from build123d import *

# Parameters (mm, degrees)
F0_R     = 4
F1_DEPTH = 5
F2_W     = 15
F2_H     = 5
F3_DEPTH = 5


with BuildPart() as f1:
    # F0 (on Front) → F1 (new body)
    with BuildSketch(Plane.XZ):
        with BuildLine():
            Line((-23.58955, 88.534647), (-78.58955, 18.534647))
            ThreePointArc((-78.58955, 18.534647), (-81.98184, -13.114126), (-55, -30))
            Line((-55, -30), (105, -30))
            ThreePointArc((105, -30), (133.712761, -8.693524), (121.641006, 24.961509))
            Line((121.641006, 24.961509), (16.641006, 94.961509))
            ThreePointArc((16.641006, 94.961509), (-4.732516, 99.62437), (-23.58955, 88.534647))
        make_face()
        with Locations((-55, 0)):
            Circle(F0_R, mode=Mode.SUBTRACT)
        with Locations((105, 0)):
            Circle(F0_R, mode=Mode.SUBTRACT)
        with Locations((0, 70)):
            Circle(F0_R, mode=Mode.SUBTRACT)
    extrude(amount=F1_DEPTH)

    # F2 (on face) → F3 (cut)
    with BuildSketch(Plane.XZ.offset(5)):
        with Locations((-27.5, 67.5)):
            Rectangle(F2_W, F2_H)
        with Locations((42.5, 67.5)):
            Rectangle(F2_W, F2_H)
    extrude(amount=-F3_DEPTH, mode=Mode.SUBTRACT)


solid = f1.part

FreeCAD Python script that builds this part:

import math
import FreeCAD as App
import Part
import Sketcher


def add_polygon(sketch, points):
    """Adds a closed chain of lines whose ends are joined by coincident constraints."""
    first, n = sketch.GeometryCount, len(points)
    for a, b in zip(points, points[1:] + points[:1]):
        sketch.addGeometry(Part.LineSegment(App.Vector(*a, 0), App.Vector(*b, 0)), False)
    for i in range(n):
        sketch.addConstraint(Sketcher.Constraint("Coincident", first + i, 2, first + (i + 1) % n, 1))

doc = App.newDocument("Part")
body = doc.addObject("PartDesign::Body", "Body")

sketch1 = doc.addObject("Sketcher::SketchObject", "Sketch")
body.addObject(sketch1)
sketch1.AttachmentSupport = (doc.XZ_Plane, [""])
sketch1.MapMode = "FlatFace"
sketch1.addGeometry([
    Part.LineSegment(App.Vector(-23.6, 88.5, 0), App.Vector(-78.6, 18.5, 0)),
    Part.ArcOfCircle(Part.Circle(App.Vector(-55, 0, 0), App.Vector(0, 0, 1), 30), math.radians(142), math.radians(270)),
    Part.LineSegment(App.Vector(-55, -30, 0), App.Vector(105, -30, 0)),
    Part.ArcOfCircle(Part.Circle(App.Vector(105, 0, 0), App.Vector(0, 0, 1), 30), math.radians(-90), math.radians(56)),
    Part.LineSegment(App.Vector(121.6, 25, 0), App.Vector(16.6, 95, 0)),
    Part.ArcOfCircle(Part.Circle(App.Vector(0, 70, 0), App.Vector(0, 0, 1), 30), math.radians(56), math.radians(142)),
    Part.Circle(App.Vector(-55, 0, 0), App.Vector(0, 0, 1), 4),
    Part.Circle(App.Vector(105, 0, 0), App.Vector(0, 0, 1), 4),
    Part.Circle(App.Vector(0, 70, 0), App.Vector(0, 0, 1), 4),
], False)
sketch1.addConstraint([
    Sketcher.Constraint("Tangent", 0, 2, 1, 1),
    Sketcher.Constraint("Tangent", 1, 2, 2, 1),
    Sketcher.Constraint("Tangent", 2, 2, 3, 1),
    Sketcher.Constraint("Tangent", 3, 2, 4, 1),
    Sketcher.Constraint("Tangent", 4, 2, 5, 1),
    Sketcher.Constraint("Tangent", 5, 2, 0, 1),
    Sketcher.Constraint("Horizontal", 2),
    Sketcher.Constraint("Coincident", 6, 3, 1, 3),
    Sketcher.Constraint("Coincident", 7, 3, 3, 3),
    Sketcher.Constraint("Coincident", 8, 3, 5, 3),
    Sketcher.Constraint("Equal", 1, 3),
    Sketcher.Constraint("Equal", 3, 5),
    Sketcher.Constraint("Equal", 6, 7),
    Sketcher.Constraint("Equal", 7, 8),
    Sketcher.Constraint("PointOnObject", 1, 3, -1),
    Sketcher.Constraint("PointOnObject", 5, 3, -2),
    Sketcher.Constraint("Diameter", 6, 8.0),
    Sketcher.Constraint("Radius", 1, 30.0),
    Sketcher.Constraint("DistanceX", 2, 1, 2, 2, 160.0),
    Sketcher.Constraint("DistanceX", 1, 3, -1, 1, 55.0),
    Sketcher.Constraint("DistanceY", -1, 1, 5, 3, 70.0),
])
pad1 = doc.addObject("PartDesign::Pad", "Pad")
body.addObject(pad1)
pad1.Profile = sketch1
pad1.Length = 5

sketch2 = doc.addObject("Sketcher::SketchObject", "Sketch001")
body.addObject(sketch2)
sketch2.AttachmentSupport = (doc.XZ_Plane, [""])
sketch2.MapMode = "FlatFace"
sketch2.AttachmentOffset = App.Placement(App.Vector(0, 0, 5), App.Rotation())
add_polygon(sketch2, [(-35, 70), (-35, 65), (-20, 65), (-20, 70)])
add_polygon(sketch2, [(35, 70), (35, 65), (50, 65), (50, 70)])
sketch2.addConstraint([
    Sketcher.Constraint("Vertical", 0),
    Sketcher.Constraint("Horizontal", 1),
    Sketcher.Constraint("Vertical", 2),
    Sketcher.Constraint("Horizontal", 3),
    Sketcher.Constraint("Vertical", 4),
    Sketcher.Constraint("Horizontal", 5),
    Sketcher.Constraint("Vertical", 6),
    Sketcher.Constraint("Horizontal", 7),
    Sketcher.Constraint("Symmetric", 0, 2, 4, 2, -2),
    Sketcher.Constraint("Horizontal", 3, 2, 6, 2),
    Sketcher.Constraint("Equal", 3, 5),
    Sketcher.Constraint("DistanceX", 1, 1, 1, 2, 15.0),
    Sketcher.Constraint("DistanceY", 0, 2, 0, 1, 5.0),
    Sketcher.Constraint("DistanceX", 0, 2, -1, 1, 35.0),
    Sketcher.Constraint("DistanceY", -1, 1, 0, 2, 65.0),
])
pocket1 = doc.addObject("PartDesign::Pocket", "Pocket")
body.addObject(pocket1)
pocket1.Profile = sketch2
pocket1.Length = 5

doc.recompute()
